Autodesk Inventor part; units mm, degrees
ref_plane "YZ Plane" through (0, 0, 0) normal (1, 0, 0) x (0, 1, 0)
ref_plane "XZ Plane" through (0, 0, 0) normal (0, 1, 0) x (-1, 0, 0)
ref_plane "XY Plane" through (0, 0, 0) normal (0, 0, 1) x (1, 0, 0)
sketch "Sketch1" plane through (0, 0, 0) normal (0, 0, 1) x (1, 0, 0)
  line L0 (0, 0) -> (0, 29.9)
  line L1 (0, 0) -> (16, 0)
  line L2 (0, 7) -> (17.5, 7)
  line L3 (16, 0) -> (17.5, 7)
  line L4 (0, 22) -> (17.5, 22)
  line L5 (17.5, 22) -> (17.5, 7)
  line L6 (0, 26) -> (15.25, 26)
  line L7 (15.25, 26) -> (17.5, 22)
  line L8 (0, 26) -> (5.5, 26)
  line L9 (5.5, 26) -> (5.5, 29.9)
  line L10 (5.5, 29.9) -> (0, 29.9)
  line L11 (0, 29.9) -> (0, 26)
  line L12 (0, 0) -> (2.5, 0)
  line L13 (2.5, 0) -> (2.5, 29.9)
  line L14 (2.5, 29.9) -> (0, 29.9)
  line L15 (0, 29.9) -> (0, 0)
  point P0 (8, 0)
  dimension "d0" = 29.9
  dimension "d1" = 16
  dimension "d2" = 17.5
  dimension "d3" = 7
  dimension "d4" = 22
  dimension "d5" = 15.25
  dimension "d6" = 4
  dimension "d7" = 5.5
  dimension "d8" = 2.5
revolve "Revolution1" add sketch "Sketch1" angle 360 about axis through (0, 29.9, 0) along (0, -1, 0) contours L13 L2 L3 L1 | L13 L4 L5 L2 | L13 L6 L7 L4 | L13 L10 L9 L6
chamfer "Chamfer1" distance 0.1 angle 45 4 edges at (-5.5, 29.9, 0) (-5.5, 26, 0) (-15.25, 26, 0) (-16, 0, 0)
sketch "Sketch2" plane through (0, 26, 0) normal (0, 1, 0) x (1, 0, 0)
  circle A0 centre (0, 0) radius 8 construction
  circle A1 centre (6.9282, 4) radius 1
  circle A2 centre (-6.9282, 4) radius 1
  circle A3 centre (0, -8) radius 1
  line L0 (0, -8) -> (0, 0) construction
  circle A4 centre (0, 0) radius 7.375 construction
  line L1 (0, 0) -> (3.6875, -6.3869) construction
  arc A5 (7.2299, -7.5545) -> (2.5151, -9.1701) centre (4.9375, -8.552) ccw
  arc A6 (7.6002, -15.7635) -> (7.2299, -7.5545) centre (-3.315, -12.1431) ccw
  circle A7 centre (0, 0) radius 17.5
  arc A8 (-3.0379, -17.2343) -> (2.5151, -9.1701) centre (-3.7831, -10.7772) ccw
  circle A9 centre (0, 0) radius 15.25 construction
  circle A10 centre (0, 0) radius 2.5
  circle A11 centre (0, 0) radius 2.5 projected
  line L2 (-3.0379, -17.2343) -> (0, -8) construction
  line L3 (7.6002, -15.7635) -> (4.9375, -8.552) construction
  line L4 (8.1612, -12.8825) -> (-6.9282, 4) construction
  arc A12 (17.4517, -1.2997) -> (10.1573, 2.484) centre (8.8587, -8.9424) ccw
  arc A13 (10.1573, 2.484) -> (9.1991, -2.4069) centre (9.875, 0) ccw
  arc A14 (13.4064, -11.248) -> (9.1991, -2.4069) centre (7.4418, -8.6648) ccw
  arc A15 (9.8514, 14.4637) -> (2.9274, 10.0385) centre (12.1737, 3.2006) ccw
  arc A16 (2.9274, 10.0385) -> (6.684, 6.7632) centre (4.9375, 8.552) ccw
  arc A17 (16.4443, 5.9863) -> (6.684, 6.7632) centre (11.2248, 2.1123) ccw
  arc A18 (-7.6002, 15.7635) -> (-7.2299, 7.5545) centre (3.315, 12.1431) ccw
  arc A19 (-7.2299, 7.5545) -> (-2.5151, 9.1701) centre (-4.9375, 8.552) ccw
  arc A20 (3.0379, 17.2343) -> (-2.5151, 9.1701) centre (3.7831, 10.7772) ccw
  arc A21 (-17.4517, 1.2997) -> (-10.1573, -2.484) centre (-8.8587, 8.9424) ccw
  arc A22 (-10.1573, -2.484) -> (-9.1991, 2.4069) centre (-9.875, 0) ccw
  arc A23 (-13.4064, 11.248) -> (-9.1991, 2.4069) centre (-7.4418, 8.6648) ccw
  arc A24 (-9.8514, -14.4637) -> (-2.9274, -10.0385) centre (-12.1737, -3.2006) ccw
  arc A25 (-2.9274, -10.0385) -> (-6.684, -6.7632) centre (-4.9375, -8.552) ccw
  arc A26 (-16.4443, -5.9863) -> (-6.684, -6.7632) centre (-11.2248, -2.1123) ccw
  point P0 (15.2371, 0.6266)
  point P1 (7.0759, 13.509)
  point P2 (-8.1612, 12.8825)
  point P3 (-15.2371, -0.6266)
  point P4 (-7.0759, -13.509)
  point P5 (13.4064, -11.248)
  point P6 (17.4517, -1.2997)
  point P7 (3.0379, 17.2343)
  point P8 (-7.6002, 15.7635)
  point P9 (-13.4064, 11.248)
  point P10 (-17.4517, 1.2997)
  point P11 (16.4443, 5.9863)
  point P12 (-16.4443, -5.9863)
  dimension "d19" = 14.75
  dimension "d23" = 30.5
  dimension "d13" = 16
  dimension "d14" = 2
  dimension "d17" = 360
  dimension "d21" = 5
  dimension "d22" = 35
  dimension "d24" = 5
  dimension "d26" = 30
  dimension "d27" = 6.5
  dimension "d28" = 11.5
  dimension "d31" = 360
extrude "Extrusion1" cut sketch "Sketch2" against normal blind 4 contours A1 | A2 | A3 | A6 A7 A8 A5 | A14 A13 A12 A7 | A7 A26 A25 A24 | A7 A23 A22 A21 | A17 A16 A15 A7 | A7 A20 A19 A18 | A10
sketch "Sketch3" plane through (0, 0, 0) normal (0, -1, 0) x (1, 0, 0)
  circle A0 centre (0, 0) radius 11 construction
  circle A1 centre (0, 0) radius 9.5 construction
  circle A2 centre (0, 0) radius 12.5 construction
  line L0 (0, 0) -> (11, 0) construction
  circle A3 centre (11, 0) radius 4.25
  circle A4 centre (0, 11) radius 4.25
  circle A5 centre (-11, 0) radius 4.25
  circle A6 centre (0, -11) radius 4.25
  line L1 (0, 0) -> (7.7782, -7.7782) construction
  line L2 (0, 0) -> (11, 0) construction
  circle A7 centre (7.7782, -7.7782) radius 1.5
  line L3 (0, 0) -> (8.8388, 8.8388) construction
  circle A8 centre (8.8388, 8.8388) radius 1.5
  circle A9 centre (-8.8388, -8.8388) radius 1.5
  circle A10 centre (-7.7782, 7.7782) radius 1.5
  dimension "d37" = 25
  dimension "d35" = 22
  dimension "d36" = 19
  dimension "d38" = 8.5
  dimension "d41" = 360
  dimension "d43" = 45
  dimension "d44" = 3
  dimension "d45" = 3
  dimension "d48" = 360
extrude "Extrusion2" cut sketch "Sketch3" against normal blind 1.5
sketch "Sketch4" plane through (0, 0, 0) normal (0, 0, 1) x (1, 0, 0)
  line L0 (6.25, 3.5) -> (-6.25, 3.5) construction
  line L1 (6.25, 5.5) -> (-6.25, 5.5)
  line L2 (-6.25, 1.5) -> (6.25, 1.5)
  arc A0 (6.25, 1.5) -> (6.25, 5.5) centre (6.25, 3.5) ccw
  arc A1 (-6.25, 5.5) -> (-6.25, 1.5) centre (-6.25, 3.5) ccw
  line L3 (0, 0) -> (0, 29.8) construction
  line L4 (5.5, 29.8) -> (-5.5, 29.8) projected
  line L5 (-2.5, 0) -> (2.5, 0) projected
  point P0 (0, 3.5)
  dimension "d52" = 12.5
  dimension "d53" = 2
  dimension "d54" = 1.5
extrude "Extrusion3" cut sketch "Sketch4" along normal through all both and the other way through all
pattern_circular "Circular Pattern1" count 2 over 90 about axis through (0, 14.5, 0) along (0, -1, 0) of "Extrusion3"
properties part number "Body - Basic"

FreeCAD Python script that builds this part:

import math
import FreeCAD as App
import Part
import Sketcher

V = App.Vector


def edges_at(feature, points):
    """Names of the edges that pass closest to the given points."""
    edges = feature.Shape.Edges
    near = lambda p: min(range(len(edges)), key=lambda i: edges[i].distToShape(Part.Vertex(*p))[0])
    return sorted({f"Edge{near(p) + 1}" for p in points})


def add_polygon(sketch, points):
    """Adds a closed chain of lines whose ends are joined by coincident constraints."""
    first, n = sketch.GeometryCount, len(points)
    for a, b in zip(points, points[1:] + points[:1]):
        sketch.addGeometry(Part.LineSegment(App.Vector(*a, 0), App.Vector(*b, 0)), False)
    for i in range(n):
        sketch.addConstraint(Sketcher.Constraint("Coincident", first + i, 2, first + (i + 1) % n, 1))

doc = App.newDocument("Part")
params = doc.addObject("Spreadsheet::Sheet", "Params")
for row, (alias, value) in enumerate([
    ("sketch1_height", "29.9 mm"),
    ("revolution_angle", "360 deg"),
    ("chamfer_size", "0.1 mm"),
    ("sketch2_diameter", "2 mm"),
    ("sketch2_diameter2", "2 mm"),
    ("sketch2_diameter3", "2 mm"),
    ("sketch2_diameter4", "5 mm"),
    ("sketch2_radius", "11.5 mm"),
    ("pocket1_length", "4 mm"),
    ("sketch3_diameter", "3 mm"),
    ("sketch3_diameter2", "8.5 mm"),
    ("pocket2_length", "1.5 mm"),
    ("sketch4_radius", "2 mm"),
    ("sketch4_width", "12.5 mm"),
], start=1):
    params.set(f"A{row}", alias)
    params.set(f"B{row}", "=" + value)
    params.setAlias(f"B{row}", alias)

body = doc.addObject("PartDesign::Body", "Body")

# Sketch on XY plane
sketch1 = body.newObject("Sketcher::SketchObject", "Sketch")
sketch1.AttachmentSupport = (doc.getObject("XY_Plane"), [""])
sketch1.MapMode = "FlatFace"
add_polygon(sketch1, [(2.5, 0), (16, 0), (17.5, 7), (17.5, 22), (15.25, 26), (5.5, 26), (5.5, 29.9), (2.5, 29.9)])  # lines 0-7
sketch1.addConstraint(Sketcher.Constraint("Horizontal", 0))
sketch1.addConstraint(Sketcher.Constraint("Vertical", 2))
sketch1.addConstraint(Sketcher.Constraint("Horizontal", 4))
sketch1.addConstraint(Sketcher.Constraint("Vertical", 5))
sketch1.addConstraint(Sketcher.Constraint("Horizontal", 6))
sketch1.addConstraint(Sketcher.Constraint("Vertical", 7))
sketch1.addConstraint(Sketcher.Constraint("PointOnObject", 0, 2, -1))
sketch1.addConstraint(Sketcher.Constraint("DistanceY", 7, 2, 7, 1, 29.9))
sketch1.addConstraint(Sketcher.Constraint("DistanceX", -1, 1, 0, 2, 16.0))
sketch1.addConstraint(Sketcher.Constraint("DistanceY", -1, 1, 1, 2, 7.0))
sketch1.addConstraint(Sketcher.Constraint("DistanceY", -1, 1, 2, 2, 22.0))
sketch1.addConstraint(Sketcher.Constraint("DistanceY", 2, 2, 3, 2, 4.0))
sketch1.addConstraint(Sketcher.Constraint("DistanceX", -1, 1, 1, 2, 17.5))
sketch1.addConstraint(Sketcher.Constraint("DistanceX", -1, 1, 4, 2, 5.5))
sketch1.addConstraint(Sketcher.Constraint("DistanceX", -1, 1, 6, 2, 2.5))
sketch1.addConstraint(Sketcher.Constraint("DistanceX", -1, 1, 3, 2, 15.25))
sketch1.setExpression("Constraints[15]", "Params.sketch1_height")
revolution = body.newObject("PartDesign::Revolution", "Revolution")
revolution.Profile = sketch1
revolution.ReferenceAxis = (sketch1, ["V_Axis"])
revolution.setExpression("Angle", "Params.revolution_angle")
doc.recompute()

chamfer = body.newObject("PartDesign::Chamfer", "Chamfer")
chamfer.Base = (revolution, edges_at(revolution, [
    (-5.5, 29.9, 0),
    (-5.5, 26, 0),
    (-15.25, 26, 0),
    (-16, 0, 0),
]))
chamfer.setExpression("Size", "Params.chamfer_size")

# Sketch on XZ plane
sketch2 = body.newObject("Sketcher::SketchObject", "Sketch001")
sketch2.AttachmentSupport = (doc.getObject("XZ_Plane"), [""])
sketch2.MapMode = "FlatFace"
sketch2.AttachmentOffset = App.Placement(V(0, 0, -26), App.Rotation())
sketch2.addGeometry(Part.Circle(V(6.9282, -4, 0), V(0, 0, 1), 1), False)
sketch2.addGeometry(Part.Circle(V(-6.9282, -4, 0), V(0, 0, 1), 1), False)
sketch2.addGeometry(Part.Circle(V(0, 8, 0), V(0, 0, 1), 1), False)
sketch2.addGeometry(Part.ArcOfCircle(Part.Circle(V(-3.315, 12.1431, 0), V(0, 0, 1), 11.499952), math.radians(-23.516206), math.radians(18.34987)), False)
sketch2.addGeometry(Part.ArcOfCircle(Part.Circle(V(4.9375, 8.552, 0), V(0, 0, 1), 2.500021), math.radians(165.685832), math.radians(336.484529)), False)
sketch2.addGeometry(Part.ArcOfCircle(Part.Circle(V(-3.7831, 10.7772, 0), V(0, 0, 1), 6.499959), math.radians(-14.314597), math.radians(83.416742)), False)
sketch2.addGeometry(Part.ArcOfCircle(Part.Circle(V(0, 0, 0), V(0, 0, 1), 17.5), math.radians(64.259465), math.radians(99.996866)), False)
sketch2.addGeometry(Part.ArcOfCircle(Part.Circle(V(7.4418, 8.6648, 0), V(0, 0, 1), 6.499952), math.radians(-74.314565), math.radians(23.416884)), False)
sketch2.addGeometry(Part.ArcOfCircle(Part.Circle(V(0, 0, 0), V(0, 0, 1), 17.5), math.radians(4.25919), math.radians(39.996726)), False)
sketch2.addGeometry(Part.ArcOfCircle(Part.Circle(V(8.8587, 8.9424, 0), V(0, 0, 1), 11.500022), math.radians(-83.516206), math.radians(-41.650214)), False)
sketch2.addGeometry(Part.ArcOfCircle(Part.Circle(V(9.875, 0, 0), V(0, 0, 1), 2.49999), math.radians(105.685679), math.radians(276.483695)), False)
sketch2.addGeometry(Part.ArcOfCircle(Part.Circle(V(0, 0, 0), V(0, 0, 1), 17.5), math.radians(124.259248), math.radians(159.996726)), False)
sketch2.addGeometry(Part.ArcOfCircle(Part.Circle(V(-12.1737, 3.2006, 0), V(0, 0, 1), 11.500022), math.radians(36.483972), math.radians(78.349645)), False)
sketch2.addGeometry(Part.ArcOfCircle(Part.Circle(V(-4.9375, 8.552, 0), V(0, 0, 1), 2.500037), math.radians(-134.314487), math.radians(36.483498)), False)
sketch2.addGeometry(Part.ArcOfCircle(Part.Circle(V(-11.2248, 2.1123, 0), V(0, 0, 1), 6.500081), math.radians(45.686267), math.radians(143.416579)), False)
sketch2.addGeometry(Part.ArcOfCircle(Part.Circle(V(0, 0, 0), V(0, 0, 1), 17.5), math.radians(-175.74081), math.radians(-140.003274)), False)
sketch2.addGeometry(Part.ArcOfCircle(Part.Circle(V(-8.8587, -8.9424, 0), V(0, 0, 1), 11.500022), math.radians(96.483794), math.radians(138.349786)), False)
sketch2.addGeometry(Part.ArcOfCircle(Part.Circle(V(-9.875, 0, 0), V(0, 0, 1), 2.49999), math.radians(-74.314321), math.radians(96.483695)), False)
sketch2.addGeometry(Part.ArcOfCircle(Part.Circle(V(-7.4418, -8.6648, 0), V(0, 0, 1), 6.499952), math.radians(105.685435), math.radians(203.416884)), False)
sketch2.addGeometry(Part.ArcOfCircle(Part.Circle(V(11.2248, -2.1123, 0), V(0, 0, 1), 6.500081), math.radians(-134.313733), math.radians(-36.583421)), False)
sketch2.addGeometry(Part.ArcOfCircle(Part.Circle(V(0, 0, 0), V(0, 0, 1), 17.5), math.radians(-55.740752), math.radians(-20.003274)), False)
sketch2.addGeometry(Part.ArcOfCircle(Part.Circle(V(12.1737, -3.2006, 0), V(0, 0, 1), 11.500022), math.radians(-143.516028), math.radians(-101.650355)), False)
sketch2.addGeometry(Part.ArcOfCircle(Part.Circle(V(4.9375, -8.552, 0), V(0, 0, 1), 2.500037), math.radians(45.685513), math.radians(216.483498)), False)
sketch2.addGeometry(Part.ArcOfCircle(Part.Circle(V(0, 0, 0), V(0, 0, 1), 17.5), math.radians(-115.740535), math.radians(-80.003134)), False)
sketch2.addGeometry(Part.ArcOfCircle(Part.Circle(V(3.315, -12.1431, 0), V(0, 0, 1), 11.499952), math.radians(156.483794), math.radians(198.34987)), False)
sketch2.addGeometry(Part.ArcOfCircle(Part.Circle(V(-4.9375, -8.552, 0), V(0, 0, 1), 2.500021), math.radians(-14.314168), math.radians(156.484529)), False)
sketch2.addGeometry(Part.ArcOfCircle(Part.Circle(V(3.7831, -10.7772, 0), V(0, 0, 1), 6.499959), math.radians(165.685403), math.radians(263.416742)), False)
sketch2.addGeometry(Part.Circle(V(0, 0, 0), V(0, 0, 1), 2.5), False)
sketch2.addConstraint(Sketcher.Constraint("Coincident", 3, 1, 4, 2))
sketch2.addConstraint(Sketcher.Constraint("Coincident", 4, 1, 5, 1))
sketch2.addConstraint(Sketcher.Constraint("Coincident", 5, 2, 6, 2))
sketch2.addConstraint(Sketcher.Constraint("Coincident", 6, 1, 3, 2))
sketch2.addConstraint(Sketcher.Constraint("Coincident", 7, 2, 8, 2))
sketch2.addConstraint(Sketcher.Constraint("Coincident", 8, 1, 9, 2))
sketch2.addConstraint(Sketcher.Constraint("Coincident", 9, 1, 10, 2))
sketch2.addConstraint(Sketcher.Constraint("Coincident", 10, 1, 7, 1))
sketch2.addConstraint(Sketcher.Constraint("Coincident", 11, 1, 12, 2))
sketch2.addConstraint(Sketcher.Constraint("Coincident", 12, 1, 13, 2))
sketch2.addConstraint(Sketcher.Constraint("Coincident", 13, 1, 14, 1))
sketch2.addConstraint(Sketcher.Constraint("Coincident", 14, 2, 11, 2))
sketch2.addConstraint(Sketcher.Constraint("Coincident", 15, 1, 16, 2))
sketch2.addConstraint(Sketcher.Constraint("Coincident", 16, 1, 17, 2))
sketch2.addConstraint(Sketcher.Constraint("Coincident", 17, 1, 18, 1))
sketch2.addConstraint(Sketcher.Constraint("Coincident", 18, 2, 15, 2))
sketch2.addConstraint(Sketcher.Constraint("Coincident", 19, 2, 20, 2))
sketch2.addConstraint(Sketcher.Constraint("Coincident", 20, 1, 21, 2))
sketch2.addConstraint(Sketcher.Constraint("Coincident", 21, 1, 22, 2))
sketch2.addConstraint(Sketcher.Constraint("Coincident", 22, 1, 19, 1))
sketch2.addConstraint(Sketcher.Constraint("Coincident", 23, 1, 24, 2))
sketch2.addConstraint(Sketcher.Constraint("Coincident", 24, 1, 25, 2))
sketch2.addConstraint(Sketcher.Constraint("Coincident", 25, 1, 26, 1))
sketch2.addConstraint(Sketcher.Constraint("Coincident", 26, 2, 23, 2))
sketch2.addConstraint(Sketcher.Constraint("Coincident", 6, 3, -1, 1))
sketch2.addConstraint(Sketcher.Constraint("Coincident", 8, 3, -1, 1))
sketch2.addConstraint(Sketcher.Constraint("Coincident", 11, 3, -1, 1))
sketch2.addConstraint(Sketcher.Constraint("Coincident", 15, 3, -1, 1))
sketch2.addConstraint(Sketcher.Constraint("Coincident", 20, 3, -1, 1))
sketch2.addConstraint(Sketcher.Constraint("Coincident", 23, 3, -1, 1))
sketch2.addConstraint(Sketcher.Constraint("Coincident", 27, 3, -1, 1))
sketch2.addConstraint(Sketcher.Constraint("PointOnObject", 2, 3, -2))
sketch2.addConstraint(Sketcher.Constraint("PointOnObject", 10, 3, -1))
sketch2.addConstraint(Sketcher.Constraint("PointOnObject", 17, 3, -1))
sketch2.addConstraint(Sketcher.Constraint("Diameter", 0, 2.0))
sketch2.addConstraint(Sketcher.Constraint("Diameter", 1, 2.0))
sketch2.addConstraint(Sketcher.Constraint("Diameter", 2, 2.0))
sketch2.addConstraint(Sketcher.Constraint("Diameter", 27, 5.0))
sketch2.addConstraint(Sketcher.Constraint("Radius", 3, 11.5))
sketch2.addConstraint(Sketcher.Constraint("Radius", 4, 2.5))
sketch2.addConstraint(Sketcher.Constraint("Radius", 5, 6.5))
sketch2.addConstraint(Sketcher.Constraint("Radius", 6, 17.5))
sketch2.addConstraint(Sketcher.Constraint("Radius", 7, 6.5))
sketch2.addConstraint(Sketcher.Constraint("Radius", 8, 17.5))
sketch2.addConstraint(Sketcher.Constraint("Radius", 9, 11.5))
sketch2.addConstraint(Sketcher.Constraint("Radius", 10, 2.5))
sketch2.addConstraint(Sketcher.Constraint("Radius", 11, 17.5))
sketch2.addConstraint(Sketcher.Constraint("Radius", 12, 11.5))
sketch2.addConstraint(Sketcher.Constraint("Radius", 13, 2.5))
sketch2.addConstraint(Sketcher.Constraint("Radius", 14, 6.5))
sketch2.addConstraint(Sketcher.Constraint("Radius", 15, 17.5))
sketch2.addConstraint(Sketcher.Constraint("Radius", 16, 11.5))
sketch2.addConstraint(Sketcher.Constraint("Radius", 17, 2.5))
sketch2.addConstraint(Sketcher.Constraint("Radius", 18, 6.5))
sketch2.addConstraint(Sketcher.Constraint("Radius", 19, 6.5))
sketch2.addConstraint(Sketcher.Constraint("Radius", 20, 17.5))
sketch2.addConstraint(Sketcher.Constraint("Radius", 21, 11.5))
sketch2.addConstraint(Sketcher.Constraint("Radius", 22, 2.5))
sketch2.addConstraint(Sketcher.Constraint("Radius", 23, 17.5))
sketch2.addConstraint(Sketcher.Constraint("Radius", 24, 11.5))
sketch2.addConstraint(Sketcher.Constraint("Radius", 25, 2.5))
sketch2.addConstraint(Sketcher.Constraint("Radius", 26, 6.5))
sketch2.addConstraint(Sketcher.Constraint("DistanceY", 0, 3, -1, 1, 4.0))
sketch2.addConstraint(Sketcher.Constraint("DistanceY", 1, 3, -1, 1, 4.0))
sketch2.addConstraint(Sketcher.Constraint("DistanceY", -1, 1, 2, 3, 8.0))
sketch2.addConstraint(Sketcher.Constraint("DistanceY", -1, 1, 4, 1, 9.17))
sketch2.addConstraint(Sketcher.Constraint("DistanceY", 25, 1, -1, 1, 9.17))
sketch2.addConstraint(Sketcher.Constraint("DistanceX", 13, 3, 12, 1, 2.01))
sketch2.addConstraint(Sketcher.Constraint("DistanceY", 13, 1, 3, 3, 5.38))
sketch2.addConstraint(Sketcher.Constraint("DistanceX", 21, 1, 22, 3, 2.01))
sketch2.addConstraint(Sketcher.Constraint("DistanceX", 3, 3, -1, 1, 3.315))
sketch2.addConstraint(Sketcher.Constraint("DistanceY", -1, 1, 3, 3, 12.143))
sketch2.addConstraint(Sketcher.Constraint("DistanceY", -1, 1, 4, 3, 8.552))
sketch2.addConstraint(Sketcher.Constraint("DistanceX", 5, 3, -1, 1, 3.783))
sketch2.addConstraint(Sketcher.Constraint("DistanceX", -1, 1, 10, 3, 9.875))
sketch2.addConstraint(Sketcher.Constraint("DistanceY", -1, 1, 13, 3, 8.552))
sketch2.addConstraint(Sketcher.Constraint("DistanceX", 17, 3, -1, 1, 9.875))
sketch2.addConstraint(Sketcher.Constraint("DistanceY", 22, 3, -1, 1, 8.552))
sketch2.addConstraint(Sketcher.Constraint("DistanceX", -1, 1, 24, 3, 3.315))
sketch2.addConstraint(Sketcher.Constraint("DistanceY", 24, 3, -1, 1, 12.143))
sketch2.addConstraint(Sketcher.Constraint("DistanceY", 25, 3, -1, 1, 8.552))
sketch2.addConstraint(Sketcher.Constraint("DistanceX", -1, 1, 26, 3, 3.783))
sketch2.addConstraint(Sketcher.Constraint("DistanceY", -1, 1, 7, 2, 11.248))
sketch2.addConstraint(Sketcher.Constraint("DistanceY", 9, 1, -1, 1, 2.484))
sketch2.addConstraint(Sketcher.Constraint("DistanceX", -1, 1, 10, 1, 9.199))
sketch2.addConstraint(Sketcher.Constraint("DistanceX", 13, 1, -1, 1, 6.684))
sketch2.addConstraint(Sketcher.Constraint("DistanceY", -1, 1, 16, 1, 2.484))
sketch2.addConstraint(Sketcher.Constraint("DistanceX", 17, 1, -1, 1, 9.199))
sketch2.addConstraint(Sketcher.Constraint("DistanceY", 18, 2, -1, 1, 11.248))
sketch2.addConstraint(Sketcher.Constraint("DistanceX", -1, 1, 22, 1, 6.684))
sketch2.addConstraint(Sketcher.Constraint("DistanceX", 1, 3, 5, 3, 3.145))
sketch2.addConstraint(Sketcher.Constraint("DistanceX", 7, 3, 9, 3, 1.417))
sketch2.addConstraint(Sketcher.Constraint("DistanceX", 12, 3, 14, 3, 0.949))
sketch2.addConstraint(Sketcher.Constraint("DistanceX", 14, 3, 16, 3, 2.366))
sketch2.addConstraint(Sketcher.Constraint("DistanceY", 16, 3, 12, 3, 12.143))
sketch2.addConstraint(Sketcher.Constraint("DistanceX", 9, 3, 19, 3, 2.366))
sketch2.addConstraint(Sketcher.Constraint("DistanceY", 19, 3, 7, 3, 10.777))
sketch2.addConstraint(Sketcher.Constraint("DistanceX", 19, 3, 21, 3, 0.949))
sketch2.addConstraint(Sketcher.Constraint("DistanceX", 26, 3, 0, 3, 3.145))
sketch2.addConstraint(Sketcher.Constraint("DistanceX", 3, 1, 7, 3, 0.212))
sketch2.addConstraint(Sketcher.Constraint("DistanceX", 18, 3, 24, 1, 0.212))
sketch2.setExpression("Constraints[34]", "Params.sketch2_diameter")
sketch2.setExpression("Constraints[35]", "Params.sketch2_diameter2")
sketch2.setExpression("Constraints[36]", "Params.sketch2_diameter3")
sketch2.setExpression("Constraints[37]", "Params.sketch2_diameter4")
sketch2.setExpression("Constraints[38]", "Params.sketch2_radius")
pocket1 = body.newObject("PartDesign::Pocket", "Pocket")
pocket1.Profile = sketch2
pocket1.setExpression("Length", "Params.pocket1_length")
pocket1.Reversed = True

# Sketch on XZ plane
sketch3 = body.newObject("Sketcher::SketchObject", "Sketch002")
sketch3.AttachmentSupport = (doc.getObject("XZ_Plane"), [""])
sketch3.MapMode = "FlatFace"
sketch3.addGeometry(Part.Circle(V(11, 0, 0), V(0, 0, 1), 4.25), False)
sketch3.addGeometry(Part.Circle(V(0, 11, 0), V(0, 0, 1), 4.25), False)
sketch3.addGeometry(Part.Circle(V(-11, 0, 0), V(0, 0, 1), 4.25), False)
sketch3.addGeometry(Part.Circle(V(0, -11, 0), V(0, 0, 1), 4.25), False)
sketch3.addGeometry(Part.Circle(V(7.7782, -7.7782, 0), V(0, 0, 1), 1.5), False)
sketch3.addGeometry(Part.Circle(V(8.8388, 8.8388, 0), V(0, 0, 1), 1.5), False)
sketch3.addGeometry(Part.Circle(V(-8.8388, -8.8388, 0), V(0, 0, 1), 1.5), False)
sketch3.addGeometry(Part.Circle(V(-7.7782, 7.7782, 0), V(0, 0, 1), 1.5), False)
sketch3.addConstraint(Sketcher.Constraint("Equal", 0, 1))
sketch3.addConstraint(Sketcher.Constraint("Equal", 1, 2))
sketch3.addConstraint(Sketcher.Constraint("Equal", 2, 3))
sketch3.addConstraint(Sketcher.Constraint("Equal", 4, 5))
sketch3.addConstraint(Sketcher.Constraint("Equal", 5, 6))
sketch3.addConstraint(Sketcher.Constraint("Equal", 6, 7))
sketch3.addConstraint(Sketcher.Constraint("Symmetric", 0, 3, 2, 3, -1, 1))
sketch3.addConstraint(Sketcher.Constraint("Symmetric", 1, 3, 3, 3, -1, 1))
sketch3.addConstraint(Sketcher.Constraint("Symmetric", 5, 3, 6, 3, -1, 1))
sketch3.addConstraint(Sketcher.Constraint("Symmetric", 4, 3, 7, 3, -1, 1))
sketch3.addConstraint(Sketcher.Constraint("PointOnObject", 0, 3, -1))
sketch3.addConstraint(Sketcher.Constraint("PointOnObject", 1, 3, -2))
sketch3.addConstraint(Sketcher.Constraint("Diameter", 4, 3.0))
sketch3.addConstraint(Sketcher.Constraint("Diameter", 0, 8.5))
sketch3.addConstraint(Sketcher.Constraint("DistanceX", 2, 3, 0, 3, 22.0))
sketch3.addConstraint(Sketcher.Constraint("DistanceY", 3, 3, 1, 3, 22.0))
sketch3.addConstraint(Sketcher.Constraint("DistanceY", 4, 3, 5, 3, 16.617))
sketch3.addConstraint(Sketcher.Constraint("DistanceX", 6, 3, 4, 3, 16.617))
sketch3.addConstraint(Sketcher.Constraint("DistanceX", -1, 1, 4, 3, 7.7782))
sketch3.addConstraint(Sketcher.Constraint("DistanceY", 4, 3, -1, 1, 7.7782))
sketch3.setExpression("Constraints[12]", "Params.sketch3_diameter")
sketch3.setExpression("Constraints[13]", "Params.sketch3_diameter2")
pocket2 = body.newObject("PartDesign::Pocket", "Pocket001")
pocket2.Profile = sketch3
pocket2.setExpression("Length", "Params.pocket2_length")

# Sketch on XY plane
sketch4 = body.newObject("Sketcher::SketchObject", "Sketch003")
sketch4.AttachmentSupport = (doc.getObject("XY_Plane"), [""])
sketch4.MapMode = "FlatFace"
sketch4.addGeometry(Part.ArcOfCircle(Part.Circle(V(6.25, 3.5, 0), V(0, 0, 1), 2), math.radians(-90), math.radians(90)), False)
sketch4.addGeometry(Part.LineSegment(V(6.25, 5.5, 0), V(-6.25, 5.5, 0)), False)
sketch4.addGeometry(Part.ArcOfCircle(Part.Circle(V(-6.25, 3.5, 0), V(0, 0, 1), 2), math.radians(90), math.radians(270)), False)
sketch4.addGeometry(Part.LineSegment(V(-6.25, 1.5, 0), V(6.25, 1.5, 0)), False)
sketch4.addConstraint(Sketcher.Constraint("Tangent", 0, 2, 1, 1))
sketch4.addConstraint(Sketcher.Constraint("Tangent", 1, 2, 2, 1))
sketch4.addConstraint(Sketcher.Constraint("Tangent", 2, 2, 3, 1))
sketch4.addConstraint(Sketcher.Constraint("Tangent", 3, 2, 0, 1))
sketch4.addConstraint(Sketcher.Constraint("Horizontal", 1))
sketch4.addConstraint(Sketcher.Constraint("Horizontal", 3))
sketch4.addConstraint(Sketcher.Constraint("Radius", 0, 2.0))
sketch4.addConstraint(Sketcher.Constraint("DistanceX", 1, 2, 1, 1, 12.5))
sketch4.addConstraint(Sketcher.Constraint("DistanceY", -1, 1, 2, 2, 1.5))
sketch4.addConstraint(Sketcher.Constraint("DistanceX", -1, 1, 0, 3, 6.25))
sketch4.setExpression("Constraints[6]", "Params.sketch4_radius")
sketch4.setExpression("Constraints[7]", "Params.sketch4_width")
pocket3 = body.newObject("PartDesign::Pocket", "Pocket002")
pocket3.Profile = sketch4
pocket3.Type = "ThroughAll"
pocket3.Midplane = True
doc.recompute()

polarpattern = body.newObject("PartDesign::PolarPattern", "PolarPattern")
polarpattern.Originals = [pocket3]
polarpattern.Axis = (doc.getObject("Y_Axis"), [""])
polarpattern.Angle = 90
polarpattern.Occurrences = 2
polarpattern.Reversed = True
body.Tip = polarpattern

doc.recompute()
